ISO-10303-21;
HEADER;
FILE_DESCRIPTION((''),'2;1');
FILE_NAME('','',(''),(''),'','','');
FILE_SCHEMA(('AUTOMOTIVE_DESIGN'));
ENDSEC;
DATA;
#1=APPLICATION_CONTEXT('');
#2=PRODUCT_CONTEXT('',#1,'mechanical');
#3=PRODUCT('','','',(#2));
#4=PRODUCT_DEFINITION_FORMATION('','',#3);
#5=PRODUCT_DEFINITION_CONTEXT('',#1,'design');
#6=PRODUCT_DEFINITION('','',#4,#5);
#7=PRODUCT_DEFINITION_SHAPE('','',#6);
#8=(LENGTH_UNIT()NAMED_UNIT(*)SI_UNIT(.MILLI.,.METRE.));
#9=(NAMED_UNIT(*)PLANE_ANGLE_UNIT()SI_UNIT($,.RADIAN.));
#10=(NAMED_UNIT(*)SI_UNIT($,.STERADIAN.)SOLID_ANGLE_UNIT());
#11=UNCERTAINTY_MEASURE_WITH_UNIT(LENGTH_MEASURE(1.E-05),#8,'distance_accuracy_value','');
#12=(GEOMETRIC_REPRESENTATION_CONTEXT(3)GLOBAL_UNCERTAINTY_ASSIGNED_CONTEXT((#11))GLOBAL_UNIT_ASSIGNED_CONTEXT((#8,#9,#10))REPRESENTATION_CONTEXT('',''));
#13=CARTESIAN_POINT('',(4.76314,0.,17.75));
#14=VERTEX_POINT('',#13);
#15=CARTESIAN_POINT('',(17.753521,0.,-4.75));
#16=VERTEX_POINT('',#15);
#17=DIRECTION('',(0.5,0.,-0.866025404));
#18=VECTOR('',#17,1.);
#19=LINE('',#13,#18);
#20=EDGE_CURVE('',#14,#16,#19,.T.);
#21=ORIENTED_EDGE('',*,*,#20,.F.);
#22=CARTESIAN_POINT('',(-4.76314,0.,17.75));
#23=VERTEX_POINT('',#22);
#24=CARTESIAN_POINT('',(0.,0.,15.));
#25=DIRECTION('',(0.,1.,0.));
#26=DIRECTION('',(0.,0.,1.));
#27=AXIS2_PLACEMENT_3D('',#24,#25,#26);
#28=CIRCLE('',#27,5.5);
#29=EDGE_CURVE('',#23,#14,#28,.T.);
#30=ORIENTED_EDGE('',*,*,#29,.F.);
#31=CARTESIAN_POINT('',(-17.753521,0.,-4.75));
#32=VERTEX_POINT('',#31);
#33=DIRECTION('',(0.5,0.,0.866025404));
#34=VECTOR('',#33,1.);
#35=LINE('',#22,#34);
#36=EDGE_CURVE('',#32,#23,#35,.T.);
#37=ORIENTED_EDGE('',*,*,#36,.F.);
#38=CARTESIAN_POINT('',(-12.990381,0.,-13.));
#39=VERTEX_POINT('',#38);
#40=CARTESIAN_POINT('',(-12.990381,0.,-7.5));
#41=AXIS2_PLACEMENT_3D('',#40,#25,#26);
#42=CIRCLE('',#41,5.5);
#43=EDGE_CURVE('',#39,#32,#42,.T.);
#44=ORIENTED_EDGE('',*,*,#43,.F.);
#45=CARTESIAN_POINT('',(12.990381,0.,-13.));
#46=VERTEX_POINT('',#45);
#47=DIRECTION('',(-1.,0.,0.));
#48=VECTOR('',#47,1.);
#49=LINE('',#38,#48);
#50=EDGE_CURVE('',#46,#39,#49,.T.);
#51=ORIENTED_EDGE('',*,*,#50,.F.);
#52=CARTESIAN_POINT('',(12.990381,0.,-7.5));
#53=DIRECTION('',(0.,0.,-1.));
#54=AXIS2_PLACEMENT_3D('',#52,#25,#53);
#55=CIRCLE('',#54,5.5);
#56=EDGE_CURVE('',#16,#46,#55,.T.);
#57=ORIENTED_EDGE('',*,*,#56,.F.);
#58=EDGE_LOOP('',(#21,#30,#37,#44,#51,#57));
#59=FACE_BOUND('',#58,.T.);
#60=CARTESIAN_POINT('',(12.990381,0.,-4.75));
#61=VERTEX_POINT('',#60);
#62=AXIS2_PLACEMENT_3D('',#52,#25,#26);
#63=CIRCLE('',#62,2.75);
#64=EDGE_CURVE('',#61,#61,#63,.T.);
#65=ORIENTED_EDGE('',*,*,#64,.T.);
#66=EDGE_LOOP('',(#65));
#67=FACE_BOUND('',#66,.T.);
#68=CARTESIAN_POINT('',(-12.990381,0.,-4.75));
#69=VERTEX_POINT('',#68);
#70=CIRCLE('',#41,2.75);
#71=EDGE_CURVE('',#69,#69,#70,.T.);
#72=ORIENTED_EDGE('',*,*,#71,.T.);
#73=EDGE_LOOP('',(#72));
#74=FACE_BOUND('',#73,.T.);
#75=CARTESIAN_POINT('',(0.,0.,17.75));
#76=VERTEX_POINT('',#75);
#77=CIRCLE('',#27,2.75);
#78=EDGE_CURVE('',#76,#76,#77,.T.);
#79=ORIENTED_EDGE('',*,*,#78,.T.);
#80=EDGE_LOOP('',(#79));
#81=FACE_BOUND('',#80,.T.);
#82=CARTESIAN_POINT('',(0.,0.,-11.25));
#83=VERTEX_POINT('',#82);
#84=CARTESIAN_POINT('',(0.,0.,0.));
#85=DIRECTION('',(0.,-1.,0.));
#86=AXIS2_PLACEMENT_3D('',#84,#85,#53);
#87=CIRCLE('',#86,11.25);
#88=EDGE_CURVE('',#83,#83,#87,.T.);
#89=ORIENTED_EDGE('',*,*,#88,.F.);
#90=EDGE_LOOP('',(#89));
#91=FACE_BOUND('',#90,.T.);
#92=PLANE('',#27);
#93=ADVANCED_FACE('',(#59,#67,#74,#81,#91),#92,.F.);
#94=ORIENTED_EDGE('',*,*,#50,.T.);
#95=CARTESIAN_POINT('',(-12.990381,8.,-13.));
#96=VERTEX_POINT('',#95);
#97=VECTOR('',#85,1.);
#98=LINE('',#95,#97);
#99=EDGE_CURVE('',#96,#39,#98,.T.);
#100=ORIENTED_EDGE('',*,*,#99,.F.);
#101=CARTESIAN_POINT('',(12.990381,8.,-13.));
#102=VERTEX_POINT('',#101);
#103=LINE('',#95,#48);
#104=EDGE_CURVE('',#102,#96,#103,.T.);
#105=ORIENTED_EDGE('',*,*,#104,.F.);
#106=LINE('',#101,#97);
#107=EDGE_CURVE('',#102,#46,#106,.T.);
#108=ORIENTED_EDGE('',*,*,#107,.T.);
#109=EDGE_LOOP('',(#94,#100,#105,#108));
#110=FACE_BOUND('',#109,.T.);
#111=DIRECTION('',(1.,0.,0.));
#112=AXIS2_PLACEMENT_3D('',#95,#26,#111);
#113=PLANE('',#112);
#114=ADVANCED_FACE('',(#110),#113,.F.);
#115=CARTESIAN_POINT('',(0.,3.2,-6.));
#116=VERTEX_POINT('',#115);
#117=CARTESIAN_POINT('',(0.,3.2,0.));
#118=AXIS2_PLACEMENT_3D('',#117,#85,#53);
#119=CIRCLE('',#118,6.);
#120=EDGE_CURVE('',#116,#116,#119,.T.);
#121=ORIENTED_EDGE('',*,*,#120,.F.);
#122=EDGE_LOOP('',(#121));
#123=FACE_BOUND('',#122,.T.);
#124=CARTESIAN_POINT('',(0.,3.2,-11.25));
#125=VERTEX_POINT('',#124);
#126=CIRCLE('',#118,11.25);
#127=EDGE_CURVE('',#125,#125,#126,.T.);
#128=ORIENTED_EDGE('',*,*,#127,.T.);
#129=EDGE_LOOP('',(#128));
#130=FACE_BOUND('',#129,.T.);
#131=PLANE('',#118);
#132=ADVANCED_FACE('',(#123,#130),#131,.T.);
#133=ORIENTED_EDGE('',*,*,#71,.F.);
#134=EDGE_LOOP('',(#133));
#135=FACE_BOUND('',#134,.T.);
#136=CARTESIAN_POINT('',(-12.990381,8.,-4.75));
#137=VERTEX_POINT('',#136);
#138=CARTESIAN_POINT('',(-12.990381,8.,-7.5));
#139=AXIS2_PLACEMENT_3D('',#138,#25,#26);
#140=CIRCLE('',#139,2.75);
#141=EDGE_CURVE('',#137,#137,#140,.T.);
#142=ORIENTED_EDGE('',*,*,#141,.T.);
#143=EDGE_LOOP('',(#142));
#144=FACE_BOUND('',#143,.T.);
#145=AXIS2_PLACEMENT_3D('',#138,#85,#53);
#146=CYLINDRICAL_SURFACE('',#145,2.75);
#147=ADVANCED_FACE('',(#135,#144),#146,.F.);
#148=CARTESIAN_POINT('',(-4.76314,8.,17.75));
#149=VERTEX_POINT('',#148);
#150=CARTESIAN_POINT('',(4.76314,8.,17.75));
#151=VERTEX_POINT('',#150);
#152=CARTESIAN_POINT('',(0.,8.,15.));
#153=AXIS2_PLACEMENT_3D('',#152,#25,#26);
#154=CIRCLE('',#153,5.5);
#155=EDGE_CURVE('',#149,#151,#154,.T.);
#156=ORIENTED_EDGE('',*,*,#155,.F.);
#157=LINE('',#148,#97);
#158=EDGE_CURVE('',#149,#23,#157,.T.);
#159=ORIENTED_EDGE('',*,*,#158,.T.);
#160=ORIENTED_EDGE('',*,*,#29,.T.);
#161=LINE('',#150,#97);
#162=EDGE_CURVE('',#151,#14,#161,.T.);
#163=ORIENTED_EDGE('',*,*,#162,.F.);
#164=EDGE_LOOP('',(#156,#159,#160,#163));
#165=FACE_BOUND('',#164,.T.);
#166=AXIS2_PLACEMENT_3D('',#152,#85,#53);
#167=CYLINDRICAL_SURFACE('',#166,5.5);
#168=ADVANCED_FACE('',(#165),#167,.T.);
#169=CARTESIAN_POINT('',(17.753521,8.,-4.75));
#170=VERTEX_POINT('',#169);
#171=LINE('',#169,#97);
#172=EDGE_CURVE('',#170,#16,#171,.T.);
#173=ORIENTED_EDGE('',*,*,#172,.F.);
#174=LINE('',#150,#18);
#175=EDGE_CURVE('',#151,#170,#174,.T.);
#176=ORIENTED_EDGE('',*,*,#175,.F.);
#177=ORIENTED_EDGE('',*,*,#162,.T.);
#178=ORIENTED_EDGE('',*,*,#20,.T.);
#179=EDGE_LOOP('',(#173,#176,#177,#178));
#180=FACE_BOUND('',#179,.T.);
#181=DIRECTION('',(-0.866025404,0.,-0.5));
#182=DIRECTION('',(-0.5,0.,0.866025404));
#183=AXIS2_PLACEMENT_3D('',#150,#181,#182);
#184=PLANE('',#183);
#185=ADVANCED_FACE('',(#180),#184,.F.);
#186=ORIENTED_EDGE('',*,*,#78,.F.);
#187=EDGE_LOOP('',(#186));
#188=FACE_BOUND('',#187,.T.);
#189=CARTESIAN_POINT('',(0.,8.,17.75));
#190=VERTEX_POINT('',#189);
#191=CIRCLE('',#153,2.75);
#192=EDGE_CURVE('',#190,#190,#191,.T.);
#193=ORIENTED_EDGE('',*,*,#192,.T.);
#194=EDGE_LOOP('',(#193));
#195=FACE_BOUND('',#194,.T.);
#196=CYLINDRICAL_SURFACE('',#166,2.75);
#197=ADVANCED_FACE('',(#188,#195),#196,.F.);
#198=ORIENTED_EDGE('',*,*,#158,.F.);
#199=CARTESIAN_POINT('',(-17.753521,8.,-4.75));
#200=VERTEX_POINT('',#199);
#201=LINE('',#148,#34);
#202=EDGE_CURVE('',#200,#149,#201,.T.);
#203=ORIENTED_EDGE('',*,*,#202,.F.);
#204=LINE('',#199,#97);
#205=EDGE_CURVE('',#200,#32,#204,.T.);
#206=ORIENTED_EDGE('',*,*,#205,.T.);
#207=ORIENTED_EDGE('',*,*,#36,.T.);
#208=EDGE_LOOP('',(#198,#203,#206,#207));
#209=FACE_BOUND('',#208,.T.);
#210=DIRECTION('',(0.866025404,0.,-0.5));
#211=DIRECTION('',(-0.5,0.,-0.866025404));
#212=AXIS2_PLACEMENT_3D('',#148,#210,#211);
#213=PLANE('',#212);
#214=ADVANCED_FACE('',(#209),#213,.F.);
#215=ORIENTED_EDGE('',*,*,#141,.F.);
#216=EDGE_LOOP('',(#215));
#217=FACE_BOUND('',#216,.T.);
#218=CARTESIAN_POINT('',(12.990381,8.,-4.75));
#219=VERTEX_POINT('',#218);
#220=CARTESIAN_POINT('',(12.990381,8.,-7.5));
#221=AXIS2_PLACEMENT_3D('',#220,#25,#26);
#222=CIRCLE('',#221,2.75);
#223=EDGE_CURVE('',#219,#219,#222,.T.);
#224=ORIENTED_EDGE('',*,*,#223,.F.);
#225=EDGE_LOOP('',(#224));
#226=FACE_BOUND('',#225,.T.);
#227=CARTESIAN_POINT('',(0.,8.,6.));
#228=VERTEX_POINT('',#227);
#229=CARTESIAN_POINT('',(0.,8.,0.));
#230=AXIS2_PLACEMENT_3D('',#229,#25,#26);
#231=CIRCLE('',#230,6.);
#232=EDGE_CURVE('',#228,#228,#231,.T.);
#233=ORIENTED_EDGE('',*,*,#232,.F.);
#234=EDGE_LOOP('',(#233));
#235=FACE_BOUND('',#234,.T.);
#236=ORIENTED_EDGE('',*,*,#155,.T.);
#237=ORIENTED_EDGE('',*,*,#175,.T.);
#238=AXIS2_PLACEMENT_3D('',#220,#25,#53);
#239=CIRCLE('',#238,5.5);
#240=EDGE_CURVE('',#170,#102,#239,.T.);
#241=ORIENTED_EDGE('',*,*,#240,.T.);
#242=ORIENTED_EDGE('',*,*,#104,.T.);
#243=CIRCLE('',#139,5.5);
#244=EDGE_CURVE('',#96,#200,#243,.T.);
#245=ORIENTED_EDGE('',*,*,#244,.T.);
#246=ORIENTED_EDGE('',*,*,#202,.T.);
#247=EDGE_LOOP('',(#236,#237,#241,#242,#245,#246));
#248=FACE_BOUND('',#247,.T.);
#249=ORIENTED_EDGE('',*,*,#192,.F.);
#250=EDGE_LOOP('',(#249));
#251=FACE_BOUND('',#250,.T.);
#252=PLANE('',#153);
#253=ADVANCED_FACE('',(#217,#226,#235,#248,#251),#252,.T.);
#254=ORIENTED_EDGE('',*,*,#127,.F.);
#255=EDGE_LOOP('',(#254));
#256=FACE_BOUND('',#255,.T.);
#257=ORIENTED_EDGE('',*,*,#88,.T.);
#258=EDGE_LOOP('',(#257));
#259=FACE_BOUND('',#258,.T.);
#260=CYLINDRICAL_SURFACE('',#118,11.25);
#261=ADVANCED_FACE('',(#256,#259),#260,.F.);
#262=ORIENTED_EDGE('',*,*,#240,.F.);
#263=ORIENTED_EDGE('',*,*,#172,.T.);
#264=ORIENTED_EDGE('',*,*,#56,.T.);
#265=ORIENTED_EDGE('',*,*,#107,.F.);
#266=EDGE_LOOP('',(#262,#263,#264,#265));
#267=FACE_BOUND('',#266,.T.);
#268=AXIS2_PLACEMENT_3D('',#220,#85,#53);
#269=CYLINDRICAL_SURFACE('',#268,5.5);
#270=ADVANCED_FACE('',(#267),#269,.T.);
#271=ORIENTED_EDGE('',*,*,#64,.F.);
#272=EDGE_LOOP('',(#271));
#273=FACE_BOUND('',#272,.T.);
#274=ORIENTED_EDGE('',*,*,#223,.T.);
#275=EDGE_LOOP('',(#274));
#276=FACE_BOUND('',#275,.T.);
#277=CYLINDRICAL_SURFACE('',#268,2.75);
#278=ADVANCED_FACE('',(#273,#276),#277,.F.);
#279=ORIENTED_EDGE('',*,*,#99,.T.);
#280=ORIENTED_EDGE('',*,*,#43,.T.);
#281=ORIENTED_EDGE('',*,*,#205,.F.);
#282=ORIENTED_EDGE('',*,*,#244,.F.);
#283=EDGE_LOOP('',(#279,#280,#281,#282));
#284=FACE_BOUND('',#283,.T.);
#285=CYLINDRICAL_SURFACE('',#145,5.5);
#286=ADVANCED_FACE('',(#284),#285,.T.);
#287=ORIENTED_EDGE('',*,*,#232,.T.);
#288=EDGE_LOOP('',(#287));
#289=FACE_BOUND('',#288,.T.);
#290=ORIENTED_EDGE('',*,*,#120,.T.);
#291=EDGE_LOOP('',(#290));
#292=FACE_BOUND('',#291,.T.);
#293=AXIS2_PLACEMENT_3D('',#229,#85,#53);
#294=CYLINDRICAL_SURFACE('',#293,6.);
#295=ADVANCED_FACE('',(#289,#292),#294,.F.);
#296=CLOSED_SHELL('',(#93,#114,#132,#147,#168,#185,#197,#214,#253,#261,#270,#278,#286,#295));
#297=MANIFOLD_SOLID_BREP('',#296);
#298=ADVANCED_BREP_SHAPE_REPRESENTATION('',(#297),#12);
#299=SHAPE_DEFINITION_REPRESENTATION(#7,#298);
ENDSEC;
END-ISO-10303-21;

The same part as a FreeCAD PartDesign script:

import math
import FreeCAD as App
import Part
import Sketcher
Q = App.Units.Quantity

doc = App.newDocument("Part")
params = doc.addObject("Spreadsheet::Sheet", "Params")
for row, (alias, value) in enumerate([
    ("sketch1_diameter", "12 mm"),
    ("sketch1_diameter2", "5.5 mm"),
    ("sketch1_radius", "5.5 mm"),
    ("pad1_length", "8 mm"),
    ("sketch2_diameter", "22.5 mm"),
    ("pocket1_length", "3.2 mm"),
], start=1):
    params.set(f"A{row}", alias)
    params.set(f"B{row}", "=" + value)
    params.setAlias(f"B{row}", alias)

body = doc.addObject("PartDesign::Body", "Body")

# Sketch on XZ plane
sketch1 = body.newObject("Sketcher::SketchObject", "Sketch")
sketch1.AttachmentSupport = (doc.getObject("XZ_Plane"), [""])
sketch1.MapMode = "FlatFace"
sketch1.addGeometry(Part.LineSegment(App.Vector(13, -13, 0), App.Vector(-13, -13, 0)), False)
sketch1.addGeometry(Part.ArcOfCircle(Part.Circle(App.Vector(-13, -7.5, 0), App.Vector(0, 0, 1), 5.5), math.radians(150), math.radians(270)), False)
sketch1.addGeometry(Part.LineSegment(App.Vector(-17.8, -4.8, 0), App.Vector(-4.8, 17.8, 0)), False)
sketch1.addGeometry(Part.ArcOfCircle(Part.Circle(App.Vector(0, 15, 0), App.Vector(0, 0, 1), 5.5), math.radians(30), math.radians(150)), False)
sketch1.addGeometry(Part.LineSegment(App.Vector(4.8, 17.8, 0), App.Vector(17.8, -4.8, 0)), False)
sketch1.addGeometry(Part.ArcOfCircle(Part.Circle(App.Vector(13, -7.5, 0), App.Vector(0, 0, 1), 5.5), math.radians(-90), math.radians(30)), False)
sketch1.addGeometry(Part.Circle(App.Vector(0, 15, 0), App.Vector(0, 0, 1), 2.8), False)
sketch1.addGeometry(Part.Circle(App.Vector(0, 0, 0), App.Vector(0, 0, 1), 6), False)
sketch1.addGeometry(Part.Circle(App.Vector(13, -7.5, 0), App.Vector(0, 0, 1), 2.8), False)
sketch1.addGeometry(Part.Circle(App.Vector(-13, -7.5, 0), App.Vector(0, 0, 1), 2.8), False)
sketch1.addConstraint(Sketcher.Constraint("Tangent", 0, 2, 1, 2))
sketch1.addConstraint(Sketcher.Constraint("Tangent", 1, 1, 2, 1))
sketch1.addConstraint(Sketcher.Constraint("Tangent", 2, 2, 3, 2))
sketch1.addConstraint(Sketcher.Constraint("Tangent", 3, 1, 4, 1))
sketch1.addConstraint(Sketcher.Constraint("Tangent", 4, 2, 5, 2))
sketch1.addConstraint(Sketcher.Constraint("Tangent", 5, 1, 0, 1))
sketch1.addConstraint(Sketcher.Constraint("Horizontal", 0))
sketch1.addConstraint(Sketcher.Constraint("Coincident", 7, 3, -1, 1))
sketch1.addConstraint(Sketcher.Constraint("Coincident", 6, 3, 3, 3))
sketch1.addConstraint(Sketcher.Constraint("Coincident", 8, 3, 5, 3))
sketch1.addConstraint(Sketcher.Constraint("Coincident", 9, 3, 1, 3))
sketch1.addConstraint(Sketcher.Constraint("Equal", 1, 3))
sketch1.addConstraint(Sketcher.Constraint("Equal", 3, 5))
sketch1.addConstraint(Sketcher.Constraint("Equal", 6, 8))
sketch1.addConstraint(Sketcher.Constraint("Equal", 8, 9))
sketch1.addConstraint(Sketcher.Constraint("Symmetric", 2, 2, 3, 1, -2))
sketch1.addConstraint(Sketcher.Constraint("Diameter", 7, Q("12 mm")))
sketch1.addConstraint(Sketcher.Constraint("Diameter", 6, Q("5.5 mm")))
sketch1.addConstraint(Sketcher.Constraint("Radius", 1, Q("5.5 mm")))
sketch1.addConstraint(Sketcher.Constraint("Angle", 2, Q("60 deg")))
sketch1.addConstraint(Sketcher.Constraint("DistanceY", -1, 1, 3, 3, Q("15 mm")))
sketch1.addConstraint(Sketcher.Constraint("DistanceY", 0, 2, -1, 1, Q("13 mm")))
sketch1.setExpression("Constraints[16]", "Params.sketch1_diameter")
sketch1.setExpression("Constraints[17]", "Params.sketch1_diameter2")
sketch1.setExpression("Constraints[18]", "Params.sketch1_radius")
pad1 = body.newObject("PartDesign::Pad", "Pad")
pad1.Profile = sketch1
pad1.setExpression("Length", "Params.pad1_length")
pad1.Reversed = True

# Sketch on XZ plane
sketch2 = body.newObject("Sketcher::SketchObject", "Sketch001")
sketch2.AttachmentSupport = (doc.getObject("XZ_Plane"), [""])
sketch2.MapMode = "FlatFace"
sketch2.addGeometry(Part.Circle(App.Vector(0, 0, 0), App.Vector(0, 0, 1), 11), False)
sketch2.addConstraint(Sketcher.Constraint("Coincident", 0, 3, -1, 1))
sketch2.addConstraint(Sketcher.Constraint("Diameter", 0, Q("22.5 mm")))
sketch2.setExpression("Constraints[1]", "Params.sketch2_diameter")
pocket1 = body.newObject("PartDesign::Pocket", "Pocket")
pocket1.Profile = sketch2
pocket1.setExpression("Length", "Params.pocket1_length")

doc.recompute()
